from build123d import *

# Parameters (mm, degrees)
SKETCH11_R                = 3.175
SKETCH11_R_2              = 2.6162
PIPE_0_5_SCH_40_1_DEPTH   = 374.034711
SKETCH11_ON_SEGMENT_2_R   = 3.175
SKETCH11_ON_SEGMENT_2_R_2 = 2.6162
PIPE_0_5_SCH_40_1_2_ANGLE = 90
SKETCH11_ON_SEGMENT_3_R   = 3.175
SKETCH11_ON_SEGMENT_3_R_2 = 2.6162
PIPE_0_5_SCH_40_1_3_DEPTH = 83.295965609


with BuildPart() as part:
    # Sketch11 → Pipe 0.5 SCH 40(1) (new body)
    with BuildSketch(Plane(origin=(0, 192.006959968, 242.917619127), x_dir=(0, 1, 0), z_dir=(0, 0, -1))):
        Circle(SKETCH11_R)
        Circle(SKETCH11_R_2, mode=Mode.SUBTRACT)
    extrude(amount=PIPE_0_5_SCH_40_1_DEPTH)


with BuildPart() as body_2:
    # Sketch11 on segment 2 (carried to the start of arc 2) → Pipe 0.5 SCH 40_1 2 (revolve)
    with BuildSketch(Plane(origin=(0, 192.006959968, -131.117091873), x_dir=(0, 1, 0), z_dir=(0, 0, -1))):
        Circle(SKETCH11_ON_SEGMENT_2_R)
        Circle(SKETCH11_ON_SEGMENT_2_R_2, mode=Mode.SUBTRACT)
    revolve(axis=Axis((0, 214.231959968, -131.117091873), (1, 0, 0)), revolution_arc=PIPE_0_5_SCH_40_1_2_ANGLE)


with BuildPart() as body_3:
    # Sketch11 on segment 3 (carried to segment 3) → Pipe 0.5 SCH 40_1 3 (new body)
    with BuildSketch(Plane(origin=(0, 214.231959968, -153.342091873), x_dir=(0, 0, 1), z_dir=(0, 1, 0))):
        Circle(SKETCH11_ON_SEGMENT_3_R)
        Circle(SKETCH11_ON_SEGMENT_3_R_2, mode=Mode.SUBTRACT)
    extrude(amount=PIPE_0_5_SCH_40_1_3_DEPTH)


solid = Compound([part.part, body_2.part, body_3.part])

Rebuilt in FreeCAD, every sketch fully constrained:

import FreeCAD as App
import Part
import Sketcher
from FreeCAD import Vector
Q = App.Units.Quantity

doc = App.newDocument("Part")
body = doc.addObject("PartDesign::Body", "Body")

sketch1 = doc.addObject("Sketcher::SketchObject", "Sketch")
body.addObject(sketch1)
sketch1.AttachmentSupport = (doc.XY_Plane, [""])
sketch1.MapMode = "FlatFace"
sketch1.AttachmentOffset = App.Placement(Vector(0, 0, 242.917619), App.Rotation())
sketch1.addGeometry([
    Part.Circle(Vector(0, 192, 0), Vector(0, 0, 1), 3.2),
    Part.Circle(Vector(0, 192, 0), Vector(0, 0, 1), 2.6),
], False)
sketch1.addConstraint([
    Sketcher.Constraint("Coincident", 1, 3, 0, 3),
    Sketcher.Constraint("PointOnObject", 0, 3, -2),
    Sketcher.Constraint("Diameter", 0, Q("0.25 in")),
    Sketcher.Constraint("Diameter", 1, Q("0.206 in")),
    Sketcher.Constraint("DistanceY", -1, 1, 0, 3, 192.00696),
])
pad1 = doc.addObject("PartDesign::Pad", "Pad")
body.addObject(pad1)
pad1.Profile = sketch1
pad1.Length = 374.034711
pad1.Reversed = True
body2 = doc.addObject("PartDesign::Body", "Body001")

sketch2 = doc.addObject("Sketcher::SketchObject", "Sketch001")
body2.addObject(sketch2)
sketch2.AttachmentSupport = (doc.getObject("XY_Plane001"), [""])
sketch2.MapMode = "FlatFace"
sketch2.AttachmentOffset = App.Placement(Vector(0, 0, -131.117092), App.Rotation())
sketch2.addGeometry([
    Part.Circle(Vector(0, 192, 0), Vector(0, 0, 1), 3.2),
    Part.Circle(Vector(0, 192, 0), Vector(0, 0, 1), 2.6),
], False)
sketch2.addGeometry(Part.LineSegment(Vector(0, 214.2, 0), Vector(10, 214.2, 0)), True)
sketch2.addConstraint([
    Sketcher.Constraint("Horizontal", 2),
    Sketcher.Constraint("Coincident", 1, 3, 0, 3),
    Sketcher.Constraint("PointOnObject", 0, 3, -2),
    Sketcher.Constraint("PointOnObject", 2, 1, -2),
    Sketcher.Constraint("Diameter", 0, Q("0.25 in")),
    Sketcher.Constraint("Diameter", 1, Q("0.206 in")),
    Sketcher.Constraint("DistanceY", 0, 3, 2, 1, Q("0.875 in")),
    Sketcher.Constraint("DistanceX", 2, 1, 2, 2, 10.0),
    Sketcher.Constraint("DistanceY", -1, 1, 0, 3, 192.00696),
])
revolution = doc.addObject("PartDesign::Revolution", "Revolution")
body2.addObject(revolution)
revolution.Profile = sketch2
revolution.ReferenceAxis = (sketch2, ["Axis0"])
revolution.Angle = 90
body3 = doc.addObject("PartDesign::Body", "Body002")

sketch3 = doc.addObject("Sketcher::SketchObject", "Sketch002")
body3.addObject(sketch3)
sketch3.AttachmentSupport = (doc.getObject("XZ_Plane002"), [""])
sketch3.MapMode = "FlatFace"
sketch3.AttachmentOffset = App.Placement(Vector(0, 0, -214.23196), App.Rotation())
sketch3.addGeometry([
    Part.Circle(Vector(0, -153.3, 0), Vector(0, 0, 1), 3.2),
    Part.Circle(Vector(0, -153.3, 0), Vector(0, 0, 1), 2.6),
], False)
sketch3.addConstraint([
    Sketcher.Constraint("Coincident", 1, 3, 0, 3),
    Sketcher.Constraint("PointOnObject", 0, 3, -2),
    Sketcher.Constraint("Diameter", 0, Q("0.25 in")),
    Sketcher.Constraint("Diameter", 1, Q("0.206 in")),
    Sketcher.Constraint("DistanceY", 0, 3, -1, 1, 153.342092),
])
pad2 = doc.addObject("PartDesign::Pad", "Pad001")
body3.addObject(pad2)
pad2.Profile = sketch3
pad2.Length = 83.295966
pad2.Reversed = True

doc.recompute()
